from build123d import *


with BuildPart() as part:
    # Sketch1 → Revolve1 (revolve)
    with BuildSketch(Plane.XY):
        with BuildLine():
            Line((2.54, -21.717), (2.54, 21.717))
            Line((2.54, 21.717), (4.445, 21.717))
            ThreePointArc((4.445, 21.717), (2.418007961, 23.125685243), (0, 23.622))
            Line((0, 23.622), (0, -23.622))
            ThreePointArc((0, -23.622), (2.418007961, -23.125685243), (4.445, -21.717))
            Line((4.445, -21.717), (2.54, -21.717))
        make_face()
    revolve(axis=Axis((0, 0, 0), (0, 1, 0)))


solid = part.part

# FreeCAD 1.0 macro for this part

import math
import FreeCAD as App
import Part
import Sketcher
Q = App.Units.Quantity

doc = App.newDocument("Part")
body = doc.addObject("PartDesign::Body", "Body")

# Sketch on XY plane
sketch1 = body.newObject("Sketcher::SketchObject", "Sketch")
sketch1.AttachmentSupport = (doc.getObject("XY_Plane"), [""])
sketch1.MapMode = "FlatFace"
sketch1.addGeometry([
    Part.LineSegment(App.Vector(2.5, -21.7, 0), App.Vector(2.5, 21.7, 0)),  # 0
    Part.LineSegment(App.Vector(2.5, 21.7, 0), App.Vector(4.4, 21.7, 0)),  # 1
    Part.ArcOfCircle(Part.Circle(App.Vector(0, 17.5, 0), App.Vector(0, 0, 1), 6.1), math.radians(44), math.radians(90)),  # 2
    Part.LineSegment(App.Vector(0, 23.6, 0), App.Vector(0, -23.6, 0)),  # 3
    Part.ArcOfCircle(Part.Circle(App.Vector(0, -17.5, 0), App.Vector(0, 0, 1), 6.1), math.radians(-90), math.radians(-44)),  # 4
    Part.LineSegment(App.Vector(4.4, -21.7, 0), App.Vector(2.5, -21.7, 0)),  # 5
], False)
sketch1.addConstraint([
    Sketcher.Constraint("Coincident", 0, 2, 1, 1),
    Sketcher.Constraint("Coincident", 1, 2, 2, 1),
    Sketcher.Constraint("Coincident", 2, 2, 3, 1),
    Sketcher.Constraint("Coincident", 3, 2, 4, 1),
    Sketcher.Constraint("Coincident", 4, 2, 5, 1),
    Sketcher.Constraint("Coincident", 5, 2, 0, 1),
    Sketcher.Constraint("Vertical", 0),
    Sketcher.Constraint("Horizontal", 1),
    Sketcher.Constraint("Vertical", 3),
    Sketcher.Constraint("Horizontal", 5),
    Sketcher.Constraint("Equal", 2, 4),
    Sketcher.Constraint("Symmetric", 2, 3, 4, 3, -1, 1),
    Sketcher.Constraint("Symmetric", 1, 2, 4, 2, -1),
    Sketcher.Constraint("PointOnObject", 2, 2, -2),
    Sketcher.Constraint("DistanceY", 0, 1, 0, 2, Q("1.71 in")),
    Sketcher.Constraint("DistanceY", 3, 2, 3, 1, Q("1.86 in")),
    Sketcher.Constraint("DistanceX", -1, 1, 0, 2, Q("0.1 in")),
    Sketcher.Constraint("DistanceX", 1, 1, 1, 2, Q("0.075 in")),
])
revolution = body.newObject("PartDesign::Revolution", "Revolution")
revolution.Profile = sketch1
revolution.ReferenceAxis = (sketch1, ["V_Axis"])
revolution.Angle = 360

doc.recompute()
